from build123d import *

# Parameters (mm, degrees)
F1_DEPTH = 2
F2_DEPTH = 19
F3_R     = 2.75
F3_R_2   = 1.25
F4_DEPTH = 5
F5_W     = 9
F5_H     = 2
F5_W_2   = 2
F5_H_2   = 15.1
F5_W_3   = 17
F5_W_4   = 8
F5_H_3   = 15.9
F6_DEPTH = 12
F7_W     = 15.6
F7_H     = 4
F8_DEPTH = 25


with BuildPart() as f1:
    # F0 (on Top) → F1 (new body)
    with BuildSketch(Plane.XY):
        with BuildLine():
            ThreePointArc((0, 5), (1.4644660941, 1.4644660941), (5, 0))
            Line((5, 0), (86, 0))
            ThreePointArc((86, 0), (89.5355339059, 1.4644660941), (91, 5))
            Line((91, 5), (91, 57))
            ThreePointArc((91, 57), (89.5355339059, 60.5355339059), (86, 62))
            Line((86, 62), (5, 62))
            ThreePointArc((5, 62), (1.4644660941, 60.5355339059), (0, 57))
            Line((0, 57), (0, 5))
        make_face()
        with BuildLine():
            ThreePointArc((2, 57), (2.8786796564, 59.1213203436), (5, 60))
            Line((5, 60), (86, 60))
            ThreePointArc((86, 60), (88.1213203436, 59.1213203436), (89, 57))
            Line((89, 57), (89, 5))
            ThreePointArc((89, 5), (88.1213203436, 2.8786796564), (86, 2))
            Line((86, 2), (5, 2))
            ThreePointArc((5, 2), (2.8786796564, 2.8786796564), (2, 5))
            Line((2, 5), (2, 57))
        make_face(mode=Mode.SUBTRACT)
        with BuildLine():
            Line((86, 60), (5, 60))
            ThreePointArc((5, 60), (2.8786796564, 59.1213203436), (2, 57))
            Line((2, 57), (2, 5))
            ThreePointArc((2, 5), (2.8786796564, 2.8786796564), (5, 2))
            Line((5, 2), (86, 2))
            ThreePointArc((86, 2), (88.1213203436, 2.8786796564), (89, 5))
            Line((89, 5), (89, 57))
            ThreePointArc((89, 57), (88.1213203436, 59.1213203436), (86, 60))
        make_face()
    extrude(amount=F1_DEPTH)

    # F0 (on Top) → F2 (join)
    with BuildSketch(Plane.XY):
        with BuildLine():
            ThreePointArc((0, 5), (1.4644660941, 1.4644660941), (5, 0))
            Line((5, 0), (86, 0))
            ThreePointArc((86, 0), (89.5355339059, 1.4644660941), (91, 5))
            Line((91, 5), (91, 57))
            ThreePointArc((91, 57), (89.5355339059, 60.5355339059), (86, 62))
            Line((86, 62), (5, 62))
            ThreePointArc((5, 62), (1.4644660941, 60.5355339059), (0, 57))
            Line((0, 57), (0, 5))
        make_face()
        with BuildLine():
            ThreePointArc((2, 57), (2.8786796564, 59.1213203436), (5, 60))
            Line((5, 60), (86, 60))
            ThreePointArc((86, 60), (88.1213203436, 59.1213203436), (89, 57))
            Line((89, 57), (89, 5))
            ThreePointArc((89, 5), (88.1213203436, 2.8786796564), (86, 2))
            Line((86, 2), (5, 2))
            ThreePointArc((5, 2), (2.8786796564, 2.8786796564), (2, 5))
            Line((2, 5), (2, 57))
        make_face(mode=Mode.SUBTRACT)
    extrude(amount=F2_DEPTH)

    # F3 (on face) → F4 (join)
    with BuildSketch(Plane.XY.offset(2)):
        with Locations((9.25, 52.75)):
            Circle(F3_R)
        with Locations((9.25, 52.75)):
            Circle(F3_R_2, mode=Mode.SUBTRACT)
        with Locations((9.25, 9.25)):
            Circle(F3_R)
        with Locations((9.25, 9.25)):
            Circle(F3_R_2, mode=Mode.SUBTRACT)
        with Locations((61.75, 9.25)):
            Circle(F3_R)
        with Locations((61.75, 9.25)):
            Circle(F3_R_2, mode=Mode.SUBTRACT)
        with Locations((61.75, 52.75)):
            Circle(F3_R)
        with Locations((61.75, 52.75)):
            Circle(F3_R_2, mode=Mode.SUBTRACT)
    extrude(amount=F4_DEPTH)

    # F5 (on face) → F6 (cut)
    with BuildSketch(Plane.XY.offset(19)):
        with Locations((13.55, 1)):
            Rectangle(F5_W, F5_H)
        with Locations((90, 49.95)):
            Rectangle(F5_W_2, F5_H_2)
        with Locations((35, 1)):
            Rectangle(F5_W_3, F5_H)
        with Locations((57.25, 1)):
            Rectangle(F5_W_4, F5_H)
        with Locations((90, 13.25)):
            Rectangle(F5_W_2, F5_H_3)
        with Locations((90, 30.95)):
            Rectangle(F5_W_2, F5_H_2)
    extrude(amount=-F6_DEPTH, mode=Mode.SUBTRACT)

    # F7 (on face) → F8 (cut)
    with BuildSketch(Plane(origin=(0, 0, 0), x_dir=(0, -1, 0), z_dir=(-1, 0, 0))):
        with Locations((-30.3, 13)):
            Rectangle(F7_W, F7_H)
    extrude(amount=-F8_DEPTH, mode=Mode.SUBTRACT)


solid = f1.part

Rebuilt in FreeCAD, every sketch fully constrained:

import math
import FreeCAD as App
import Part
import Sketcher

V = App.Vector
Q = App.Units.Quantity

doc = App.newDocument("Part")
body = doc.addObject("PartDesign::Body", "Body")

# Sketch on XY plane
sketch1 = body.newObject("Sketcher::SketchObject", "Sketch")
sketch1.AttachmentSupport = (doc.getObject("XY_Plane"), [""])
sketch1.MapMode = "FlatFace"
sketch1.addGeometry([
    Part.ArcOfCircle(Part.Circle(V(5, 5, 0), V(0, 0, 1), 5), math.radians(180), math.radians(270)),  # 0
    Part.LineSegment(V(5, 0, 0), V(86, 0, 0)),  # 1
    Part.ArcOfCircle(Part.Circle(V(86, 5, 0), V(0, 0, 1), 5), math.radians(-90), math.radians(0)),  # 2
    Part.LineSegment(V(91, 5, 0), V(91, 57, 0)),  # 3
    Part.ArcOfCircle(Part.Circle(V(86, 57, 0), V(0, 0, 1), 5), math.radians(0), math.radians(90)),  # 4
    Part.LineSegment(V(86, 62, 0), V(5, 62, 0)),  # 5
    Part.ArcOfCircle(Part.Circle(V(5, 57, 0), V(0, 0, 1), 5), math.radians(90), math.radians(180)),  # 6
    Part.LineSegment(V(0, 57, 0), V(0, 5, 0)),  # 7
], False)
sketch1.addConstraint([
    Sketcher.Constraint("Tangent", 0, 2, 1, 1),
    Sketcher.Constraint("Tangent", 1, 2, 2, 1),
    Sketcher.Constraint("Tangent", 2, 2, 3, 1),
    Sketcher.Constraint("Tangent", 3, 2, 4, 1),
    Sketcher.Constraint("Tangent", 4, 2, 5, 1),
    Sketcher.Constraint("Tangent", 5, 2, 6, 1),
    Sketcher.Constraint("Tangent", 6, 2, 7, 1),
    Sketcher.Constraint("Tangent", 7, 2, 0, 1),
    Sketcher.Constraint("Horizontal", 1),
    Sketcher.Constraint("Vertical", 3),
    Sketcher.Constraint("Horizontal", 5),
    Sketcher.Constraint("Vertical", 7),
    Sketcher.Constraint("Equal", 0, 2),
    Sketcher.Constraint("Equal", 2, 4),
    Sketcher.Constraint("Equal", 4, 6),
    Sketcher.Constraint("PointOnObject", 0, 2, -1),
    Sketcher.Constraint("PointOnObject", 6, 2, -2),
    Sketcher.Constraint("Radius", 0, Q("5 mm")),
    Sketcher.Constraint("DistanceX", 1, 1, 1, 2, Q("81 mm")),
    Sketcher.Constraint("DistanceY", 3, 1, 3, 2, Q("52 mm")),
])
pad1 = body.newObject("PartDesign::Pad", "Pad")
pad1.Profile = sketch1
pad1.Length = 2

# Sketch on XY plane
sketch2 = body.newObject("Sketcher::SketchObject", "Sketch001")
sketch2.AttachmentSupport = (doc.getObject("XY_Plane"), [""])
sketch2.MapMode = "FlatFace"
sketch2.addGeometry([
    Part.ArcOfCircle(Part.Circle(V(5, 5, 0), V(0, 0, 1), 5), math.radians(180), math.radians(270)),  # 0
    Part.LineSegment(V(5, 0, 0), V(86, 0, 0)),  # 1
    Part.ArcOfCircle(Part.Circle(V(86, 5, 0), V(0, 0, 1), 5), math.radians(-90), math.radians(0)),  # 2
    Part.LineSegment(V(91, 5, 0), V(91, 57, 0)),  # 3
    Part.ArcOfCircle(Part.Circle(V(86, 57, 0), V(0, 0, 1), 5), math.radians(0), math.radians(90)),  # 4
    Part.LineSegment(V(86, 62, 0), V(5, 62, 0)),  # 5
    Part.ArcOfCircle(Part.Circle(V(5, 57, 0), V(0, 0, 1), 5), math.radians(90), math.radians(180)),  # 6
    Part.LineSegment(V(0, 57, 0), V(0, 5, 0)),  # 7
    Part.LineSegment(V(2, 5, 0), V(2, 57, 0)),  # 8
    Part.ArcOfCircle(Part.Circle(V(5, 57, 0), V(0, 0, 1), 3), math.radians(90), math.radians(180)),  # 9
    Part.LineSegment(V(5, 60, 0), V(86, 60, 0)),  # 10
    Part.ArcOfCircle(Part.Circle(V(86, 57, 0), V(0, 0, 1), 3), math.radians(0), math.radians(90)),  # 11
    Part.LineSegment(V(89, 57, 0), V(89, 5, 0)),  # 12
    Part.ArcOfCircle(Part.Circle(V(86, 5, 0), V(0, 0, 1), 3), math.radians(-90), math.radians(0)),  # 13
    Part.LineSegment(V(86, 2, 0), V(5, 2, 0)),  # 14
    Part.ArcOfCircle(Part.Circle(V(5, 5, 0), V(0, 0, 1), 3), math.radians(180), math.radians(270)),  # 15
], False)
sketch2.addConstraint([
    Sketcher.Constraint("Tangent", 0, 2, 1, 1),
    Sketcher.Constraint("Tangent", 1, 2, 2, 1),
    Sketcher.Constraint("Tangent", 2, 2, 3, 1),
    Sketcher.Constraint("Tangent", 3, 2, 4, 1),
    Sketcher.Constraint("Tangent", 4, 2, 5, 1),
    Sketcher.Constraint("Tangent", 5, 2, 6, 1),
    Sketcher.Constraint("Tangent", 6, 2, 7, 1),
    Sketcher.Constraint("Tangent", 7, 2, 0, 1),
    Sketcher.Constraint("Tangent", 8, 2, 9, 2),
    Sketcher.Constraint("Tangent", 9, 1, 10, 1),
    Sketcher.Constraint("Tangent", 10, 2, 11, 2),
    Sketcher.Constraint("Tangent", 11, 1, 12, 1),
    Sketcher.Constraint("Tangent", 12, 2, 13, 2),
    Sketcher.Constraint("Tangent", 13, 1, 14, 1),
    Sketcher.Constraint("Tangent", 14, 2, 15, 2),
    Sketcher.Constraint("Tangent", 15, 1, 8, 1),
    Sketcher.Constraint("Horizontal", 1),
    Sketcher.Constraint("Vertical", 3),
    Sketcher.Constraint("Horizontal", 5),
    Sketcher.Constraint("Vertical", 7),
    Sketcher.Constraint("Vertical", 8),
    Sketcher.Constraint("Horizontal", 10),
    Sketcher.Constraint("Vertical", 12),
    Sketcher.Constraint("Horizontal", 14),
    Sketcher.Constraint("Coincident", 9, 3, 6, 3),
    Sketcher.Constraint("Coincident", 11, 3, 4, 3),
    Sketcher.Constraint("Coincident", 13, 3, 2, 3),
    Sketcher.Constraint("Equal", 0, 2),
    Sketcher.Constraint("Equal", 2, 4),
    Sketcher.Constraint("Equal", 4, 6),
    Sketcher.Constraint("Equal", 13, 15),
    Sketcher.Constraint("PointOnObject", 0, 2, -1),
    Sketcher.Constraint("PointOnObject", 6, 2, -2),
    Sketcher.Constraint("Radius", 0, Q("5 mm")),
    Sketcher.Constraint("Radius", 9, Q("3 mm")),
    Sketcher.Constraint("DistanceX", 1, 1, 1, 2, Q("81 mm")),
    Sketcher.Constraint("DistanceY", 3, 1, 3, 2, Q("52 mm")),
])
pad2 = body.newObject("PartDesign::Pad", "Pad001")
pad2.Profile = sketch2
pad2.Length = 19

# Sketch on XY plane
sketch3 = body.newObject("Sketcher::SketchObject", "Sketch002")
sketch3.AttachmentSupport = (doc.getObject("XY_Plane"), [""])
sketch3.MapMode = "FlatFace"
sketch3.AttachmentOffset = App.Placement(V(0, 0, 2), App.Rotation())
sketch3.addGeometry([
    Part.Circle(V(9.2, 52.8, 0), V(0, 0, 1), 2.8),  # 0
    Part.Circle(V(9.2, 52.8, 0), V(0, 0, 1), 1.2),  # 1
    Part.Circle(V(9.2, 9.2, 0), V(0, 0, 1), 2.8),  # 2
    Part.Circle(V(9.2, 9.2, 0), V(0, 0, 1), 1.2),  # 3
    Part.Circle(V(61.8, 9.2, 0), V(0, 0, 1), 2.8),  # 4
    Part.Circle(V(61.8, 9.2, 0), V(0, 0, 1), 1.2),  # 5
    Part.Circle(V(61.8, 52.8, 0), V(0, 0, 1), 2.8),  # 6
    Part.Circle(V(61.8, 52.8, 0), V(0, 0, 1), 1.2),  # 7
], False)
sketch3.addConstraint([
    Sketcher.Constraint("Coincident", 1, 3, 0, 3),
    Sketcher.Constraint("Coincident", 3, 3, 2, 3),
    Sketcher.Constraint("Coincident", 5, 3, 4, 3),
    Sketcher.Constraint("Coincident", 7, 3, 6, 3),
    Sketcher.Constraint("Equal", 0, 2),
    Sketcher.Constraint("Equal", 1, 3),
    Sketcher.Constraint("Equal", 2, 4),
    Sketcher.Constraint("Equal", 3, 5),
    Sketcher.Constraint("Equal", 4, 6),
    Sketcher.Constraint("Equal", 5, 7),
    Sketcher.Constraint("Horizontal", 3, 3, 4, 3),
    Sketcher.Constraint("Horizontal", 1, 3, 6, 3),
    Sketcher.Constraint("Vertical", 1, 3, 2, 3),
    Sketcher.Constraint("Vertical", 5, 3, 6, 3),
    Sketcher.Constraint("Diameter", 0, Q("5.5 mm")),
    Sketcher.Constraint("Diameter", 1, Q("2.5 mm")),
    Sketcher.Constraint("DistanceY", 2, 3, 0, 3, Q("43.5 mm")),
    Sketcher.Constraint("DistanceX", 2, 3, 4, 3, Q("52.5 mm")),
    Sketcher.Constraint("DistanceX", -1, 1, 0, 3, Q("9.25 mm")),
    Sketcher.Constraint("DistanceY", -1, 1, 0, 3, Q("52.75 mm")),
])
pad3 = body.newObject("PartDesign::Pad", "Pad002")
pad3.Profile = sketch3
pad3.Length = 5

# Sketch on XY plane
sketch4 = body.newObject("Sketcher::SketchObject", "Sketch003")
sketch4.AttachmentSupport = (doc.getObject("XY_Plane"), [""])
sketch4.MapMode = "FlatFace"
sketch4.AttachmentOffset = App.Placement(V(0, 0, 19), App.Rotation())
sketch4.addGeometry([
    Part.LineSegment(V(9.1, 2, 0), V(9.1, 0, 0)),  # 0
    Part.LineSegment(V(9.1, 0, 0), V(18.1, 0, 0)),  # 1
    Part.LineSegment(V(18.1, 0, 0), V(18.1, 2, 0)),  # 2
    Part.LineSegment(V(18.1, 2, 0), V(9.1, 2, 0)),  # 3
    Part.LineSegment(V(89, 57.5, 0), V(89, 42.4, 0)),  # 4
    Part.LineSegment(V(89, 42.4, 0), V(91, 42.4, 0)),  # 5
    Part.LineSegment(V(91, 42.4, 0), V(91, 57.5, 0)),  # 6
    Part.LineSegment(V(91, 57.5, 0), V(89, 57.5, 0)),  # 7
    Part.LineSegment(V(26.5, 2, 0), V(26.5, 0, 0)),  # 8
    Part.LineSegment(V(26.5, 0, 0), V(43.5, 0, 0)),  # 9
    Part.LineSegment(V(43.5, 0, 0), V(43.5, 2, 0)),  # 10
    Part.LineSegment(V(43.5, 2, 0), V(26.5, 2, 0)),  # 11
    Part.LineSegment(V(53.2, 2, 0), V(53.2, 0, 0)),  # 12
    Part.LineSegment(V(53.2, 0, 0), V(61.2, 0, 0)),  # 13
    Part.LineSegment(V(61.2, 0, 0), V(61.2, 2, 0)),  # 14
    Part.LineSegment(V(61.2, 2, 0), V(53.2, 2, 0)),  # 15
    Part.LineSegment(V(89, 21.2, 0), V(89, 5.3, 0)),  # 16
    Part.LineSegment(V(89, 5.3, 0), V(91, 5.3, 0)),  # 17
    Part.LineSegment(V(91, 5.3, 0), V(91, 21.2, 0)),  # 18
    Part.LineSegment(V(91, 21.2, 0), V(89, 21.2, 0)),  # 19
    Part.LineSegment(V(89, 38.5, 0), V(89, 23.4, 0)),  # 20
    Part.LineSegment(V(89, 23.4, 0), V(91, 23.4, 0)),  # 21
    Part.LineSegment(V(91, 23.4, 0), V(91, 38.5, 0)),  # 22
    Part.LineSegment(V(91, 38.5, 0), V(89, 38.5, 0)),  # 23
], False)
sketch4.addConstraint([
    Sketcher.Constraint("Coincident", 0, 2, 1, 1),
    Sketcher.Constraint("Coincident", 1, 2, 2, 1),
    Sketcher.Constraint("Coincident", 2, 2, 3, 1),
    Sketcher.Constraint("Coincident", 3, 2, 0, 1),
    Sketcher.Constraint("Coincident", 4, 2, 5, 1),
    Sketcher.Constraint("Coincident", 5, 2, 6, 1),
    Sketcher.Constraint("Coincident", 6, 2, 7, 1),
    Sketcher.Constraint("Coincident", 7, 2, 4, 1),
    Sketcher.Constraint("Coincident", 8, 2, 9, 1),
    Sketcher.Constraint("Coincident", 9, 2, 10, 1),
    Sketcher.Constraint("Coincident", 10, 2, 11, 1),
    Sketcher.Constraint("Coincident", 11, 2, 8, 1),
    Sketcher.Constraint("Coincident", 12, 2, 13, 1),
    Sketcher.Constraint("Coincident", 13, 2, 14, 1),
    Sketcher.Constraint("Coincident", 14, 2, 15, 1),
    Sketcher.Constraint("Coincident", 15, 2, 12, 1),
    Sketcher.Constraint("Coincident", 16, 2, 17, 1),
    Sketcher.Constraint("Coincident", 17, 2, 18, 1),
    Sketcher.Constraint("Coincident", 18, 2, 19, 1),
    Sketcher.Constraint("Coincident", 19, 2, 16, 1),
    Sketcher.Constraint("Coincident", 20, 2, 21, 1),
    Sketcher.Constraint("Coincident", 21, 2, 22, 1),
    Sketcher.Constraint("Coincident", 22, 2, 23, 1),
    Sketcher.Constraint("Coincident", 23, 2, 20, 1),
    Sketcher.Constraint("Vertical", 0),
    Sketcher.Constraint("Horizontal", 1),
    Sketcher.Constraint("Vertical", 2),
    Sketcher.Constraint("Horizontal", 3),
    Sketcher.Constraint("Vertical", 4),
    Sketcher.Constraint("Horizontal", 5),
    Sketcher.Constraint("Vertical", 6),
    Sketcher.Constraint("Horizontal", 7),
    Sketcher.Constraint("Vertical", 8),
    Sketcher.Constraint("Horizontal", 9),
    Sketcher.Constraint("Vertical", 10),
    Sketcher.Constraint("Horizontal", 11),
    Sketcher.Constraint("Vertical", 12),
    Sketcher.Constraint("Horizontal", 13),
    Sketcher.Constraint("Vertical", 14),
    Sketcher.Constraint("Horizontal", 15),
    Sketcher.Constraint("Vertical", 16),
    Sketcher.Constraint("Horizontal", 17),
    Sketcher.Constraint("Vertical", 18),
    Sketcher.Constraint("Horizontal", 19),
    Sketcher.Constraint("Vertical", 20),
    Sketcher.Constraint("Horizontal", 21),
    Sketcher.Constraint("Vertical", 22),
    Sketcher.Constraint("Horizontal", 23),
    Sketcher.Constraint("PointOnObject", 0, 2, -1),
    Sketcher.Constraint("PointOnObject", 8, 2, -1),
    Sketcher.Constraint("PointOnObject", 12, 2, -1),
    Sketcher.Constraint("Horizontal", 3, 2, 10, 2),
    Sketcher.Constraint("Horizontal", 11, 2, 14, 2),
    Sketcher.Constraint("Vertical", 7, 2, 16, 2),
    Sketcher.Constraint("Vertical", 6, 2, 17, 2),
    Sketcher.Constraint("Vertical", 19, 2, 20, 2),
    Sketcher.Constraint("Vertical", 18, 2, 21, 2),
    Sketcher.Constraint("Equal", 23, 0),
    Sketcher.Constraint("Equal", 6, 20),
    Sketcher.Constraint("DistanceX", 1, 1, 1, 2, Q("9 mm")),
    Sketcher.Constraint("DistanceX", 5, 1, 5, 2, Q("2 mm")),
    Sketcher.Constraint("DistanceX", 9, 1, 9, 2, Q("17 mm")),
    Sketcher.Constraint("DistanceX", 13, 1, 13, 2, Q("8 mm")),
    Sketcher.Constraint("DistanceY", 4, 2, 4, 1, Q("15.1 mm")),
    Sketcher.Constraint("DistanceY", 16, 2, 16, 1, Q("15.9 mm")),
    Sketcher.Constraint("DistanceX", -1, 1, 4, 2, Q("89 mm")),
    Sketcher.Constraint("DistanceY", 20, 2, 4, 2, Q("19 mm")),
    Sketcher.Constraint("DistanceY", -1, 1, 4, 2, Q("42.4 mm")),
    Sketcher.Constraint("DistanceX", -1, 1, 8, 2, Q("26.5 mm")),
    Sketcher.Constraint("DistanceY", -1, 1, 16, 2, Q("5.3 mm")),
    Sketcher.Constraint("DistanceX", 1, 2, 12, 2, Q("35.2 mm")),
    Sketcher.Constraint("DistanceX", -1, 1, 0, 2, Q("9.05 mm")),
])
pocket1 = body.newObject("PartDesign::Pocket", "Pocket")
pocket1.Profile = sketch4
pocket1.Length = 12

# Sketch on YZ plane
sketch5 = body.newObject("Sketcher::SketchObject", "Sketch004")
sketch5.AttachmentSupport = (doc.getObject("YZ_Plane"), [""])
sketch5.MapMode = "FlatFace"
sketch5.addGeometry([
    Part.LineSegment(V(38.1, 15, 0), V(38.1, 11, 0)),
    Part.LineSegment(V(38.1, 11, 0), V(22.5, 11, 0)),
    Part.LineSegment(V(22.5, 11, 0), V(22.5, 15, 0)),
    Part.LineSegment(V(22.5, 15, 0), V(38.1, 15, 0)),
], False)
sketch5.addConstraint([
    Sketcher.Constraint("Coincident", 0, 2, 1, 1),
    Sketcher.Constraint("Coincident", 1, 2, 2, 1),
    Sketcher.Constraint("Coincident", 2, 2, 3, 1),
    Sketcher.Constraint("Coincident", 3, 2, 0, 1),
    Sketcher.Constraint("Vertical", 0),
    Sketcher.Constraint("Horizontal", 1),
    Sketcher.Constraint("Vertical", 2),
    Sketcher.Constraint("Horizontal", 3),
    Sketcher.Constraint("DistanceY", 0, 2, 0, 1, Q("4 mm")),
    Sketcher.Constraint("DistanceX", 1, 2, 1, 1, Q("15.6 mm")),
    Sketcher.Constraint("DistanceY", -1, 1, 0, 2, Q("11 mm")),
    Sketcher.Constraint("DistanceX", -1, 1, 0, 2, Q("38.1 mm")),
])
pocket2 = body.newObject("PartDesign::Pocket", "Pocket001")
pocket2.Profile = sketch5
pocket2.Length = 25
pocket2.Reversed = True

doc.recompute()
